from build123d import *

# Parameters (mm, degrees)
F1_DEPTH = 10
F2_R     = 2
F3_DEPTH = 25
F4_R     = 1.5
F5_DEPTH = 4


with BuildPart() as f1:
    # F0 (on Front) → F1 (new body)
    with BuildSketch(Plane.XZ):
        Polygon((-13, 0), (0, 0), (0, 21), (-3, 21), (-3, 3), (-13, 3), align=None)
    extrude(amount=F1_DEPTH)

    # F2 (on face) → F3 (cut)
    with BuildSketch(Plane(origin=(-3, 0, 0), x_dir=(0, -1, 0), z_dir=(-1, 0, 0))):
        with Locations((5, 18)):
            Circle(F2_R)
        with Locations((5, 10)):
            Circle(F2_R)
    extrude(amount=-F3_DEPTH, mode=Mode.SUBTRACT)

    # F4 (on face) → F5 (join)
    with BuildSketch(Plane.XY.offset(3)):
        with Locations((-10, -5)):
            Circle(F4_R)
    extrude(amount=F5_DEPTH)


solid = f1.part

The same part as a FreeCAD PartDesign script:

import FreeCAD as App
import Part
import Sketcher
from FreeCAD import Vector

doc = App.newDocument("Part")
body = doc.addObject("PartDesign::Body", "Body")

# Sketch on XZ plane
sketch1 = body.newObject("Sketcher::SketchObject", "Sketch")
sketch1.AttachmentSupport = (doc.getObject("XZ_Plane"), [""])
sketch1.MapMode = "FlatFace"
sketch1.addGeometry([
    Part.LineSegment(Vector(-13, 0, 0), Vector(0, 0, 0)),  # 0
    Part.LineSegment(Vector(0, 0, 0), Vector(0, 21, 0)),  # 1
    Part.LineSegment(Vector(0, 21, 0), Vector(-3, 21, 0)),  # 2
    Part.LineSegment(Vector(-3, 21, 0), Vector(-3, 3, 0)),  # 3
    Part.LineSegment(Vector(-3, 3, 0), Vector(-13, 3, 0)),  # 4
    Part.LineSegment(Vector(-13, 3, 0), Vector(-13, 0, 0)),  # 5
], False)
sketch1.addConstraint([
    Sketcher.Constraint("Coincident", 0, 2, 1, 1),
    Sketcher.Constraint("Coincident", 1, 2, 2, 1),
    Sketcher.Constraint("Coincident", 2, 2, 3, 1),
    Sketcher.Constraint("Coincident", 3, 2, 4, 1),
    Sketcher.Constraint("Coincident", 4, 2, 5, 1),
    Sketcher.Constraint("Coincident", 5, 2, 0, 1),
    Sketcher.Constraint("Horizontal", 0),
    Sketcher.Constraint("Vertical", 1),
    Sketcher.Constraint("Horizontal", 2),
    Sketcher.Constraint("Vertical", 3),
    Sketcher.Constraint("Horizontal", 4),
    Sketcher.Constraint("Vertical", 5),
    Sketcher.Constraint("Coincident", 0, 2, -1, 1),
    Sketcher.Constraint("Equal", 2, 5),
    Sketcher.Constraint("DistanceX", 0, 1, 0, 2, 13.0),
    Sketcher.Constraint("DistanceX", 2, 2, 2, 1, 3.0),
    Sketcher.Constraint("DistanceY", 1, 1, 1, 2, 21.0),
])
pad1 = body.newObject("PartDesign::Pad", "Pad")
pad1.Profile = sketch1
pad1.Length = 10

# Sketch on YZ plane
sketch2 = body.newObject("Sketcher::SketchObject", "Sketch001")
sketch2.AttachmentSupport = (doc.getObject("YZ_Plane"), [""])
sketch2.MapMode = "FlatFace"
sketch2.AttachmentOffset = App.Placement(Vector(0, 0, -3), App.Rotation())
sketch2.addGeometry([
    Part.Circle(Vector(-5, 18, 0), Vector(0, 0, 1), 2),
    Part.Circle(Vector(-5, 10, 0), Vector(0, 0, 1), 2),
], False)
sketch2.addConstraint([
    Sketcher.Constraint("Equal", 0, 1),
    Sketcher.Constraint("Vertical", 0, 3, 1, 3),
    Sketcher.Constraint("Diameter", 0, 4.0),
    Sketcher.Constraint("DistanceX", 0, 3, -1, 1, 5.0),
    Sketcher.Constraint("DistanceY", -1, 1, 0, 3, 18.0),
    Sketcher.Constraint("DistanceY", -1, 1, 1, 3, 10.0),
])
pocket1 = body.newObject("PartDesign::Pocket", "Pocket")
pocket1.Profile = sketch2
pocket1.Length = 25
pocket1.Reversed = True

# Sketch on XY plane
sketch3 = body.newObject("Sketcher::SketchObject", "Sketch002")
sketch3.AttachmentSupport = (doc.getObject("XY_Plane"), [""])
sketch3.MapMode = "FlatFace"
sketch3.AttachmentOffset = App.Placement(Vector(0, 0, 3), App.Rotation())
sketch3.addGeometry(Part.Circle(Vector(-10, -5, 0), Vector(0, 0, 1), 1.5), False)
sketch3.addConstraint([
    Sketcher.Constraint("Diameter", 0, 3.0),
    Sketcher.Constraint("DistanceX", 0, 3, -1, 1, 10.0),
    Sketcher.Constraint("DistanceY", 0, 3, -1, 1, 5.0),
])
pad2 = body.newObject("PartDesign::Pad", "Pad001")
pad2.Profile = sketch3
pad2.Length = 4

doc.recompute()
